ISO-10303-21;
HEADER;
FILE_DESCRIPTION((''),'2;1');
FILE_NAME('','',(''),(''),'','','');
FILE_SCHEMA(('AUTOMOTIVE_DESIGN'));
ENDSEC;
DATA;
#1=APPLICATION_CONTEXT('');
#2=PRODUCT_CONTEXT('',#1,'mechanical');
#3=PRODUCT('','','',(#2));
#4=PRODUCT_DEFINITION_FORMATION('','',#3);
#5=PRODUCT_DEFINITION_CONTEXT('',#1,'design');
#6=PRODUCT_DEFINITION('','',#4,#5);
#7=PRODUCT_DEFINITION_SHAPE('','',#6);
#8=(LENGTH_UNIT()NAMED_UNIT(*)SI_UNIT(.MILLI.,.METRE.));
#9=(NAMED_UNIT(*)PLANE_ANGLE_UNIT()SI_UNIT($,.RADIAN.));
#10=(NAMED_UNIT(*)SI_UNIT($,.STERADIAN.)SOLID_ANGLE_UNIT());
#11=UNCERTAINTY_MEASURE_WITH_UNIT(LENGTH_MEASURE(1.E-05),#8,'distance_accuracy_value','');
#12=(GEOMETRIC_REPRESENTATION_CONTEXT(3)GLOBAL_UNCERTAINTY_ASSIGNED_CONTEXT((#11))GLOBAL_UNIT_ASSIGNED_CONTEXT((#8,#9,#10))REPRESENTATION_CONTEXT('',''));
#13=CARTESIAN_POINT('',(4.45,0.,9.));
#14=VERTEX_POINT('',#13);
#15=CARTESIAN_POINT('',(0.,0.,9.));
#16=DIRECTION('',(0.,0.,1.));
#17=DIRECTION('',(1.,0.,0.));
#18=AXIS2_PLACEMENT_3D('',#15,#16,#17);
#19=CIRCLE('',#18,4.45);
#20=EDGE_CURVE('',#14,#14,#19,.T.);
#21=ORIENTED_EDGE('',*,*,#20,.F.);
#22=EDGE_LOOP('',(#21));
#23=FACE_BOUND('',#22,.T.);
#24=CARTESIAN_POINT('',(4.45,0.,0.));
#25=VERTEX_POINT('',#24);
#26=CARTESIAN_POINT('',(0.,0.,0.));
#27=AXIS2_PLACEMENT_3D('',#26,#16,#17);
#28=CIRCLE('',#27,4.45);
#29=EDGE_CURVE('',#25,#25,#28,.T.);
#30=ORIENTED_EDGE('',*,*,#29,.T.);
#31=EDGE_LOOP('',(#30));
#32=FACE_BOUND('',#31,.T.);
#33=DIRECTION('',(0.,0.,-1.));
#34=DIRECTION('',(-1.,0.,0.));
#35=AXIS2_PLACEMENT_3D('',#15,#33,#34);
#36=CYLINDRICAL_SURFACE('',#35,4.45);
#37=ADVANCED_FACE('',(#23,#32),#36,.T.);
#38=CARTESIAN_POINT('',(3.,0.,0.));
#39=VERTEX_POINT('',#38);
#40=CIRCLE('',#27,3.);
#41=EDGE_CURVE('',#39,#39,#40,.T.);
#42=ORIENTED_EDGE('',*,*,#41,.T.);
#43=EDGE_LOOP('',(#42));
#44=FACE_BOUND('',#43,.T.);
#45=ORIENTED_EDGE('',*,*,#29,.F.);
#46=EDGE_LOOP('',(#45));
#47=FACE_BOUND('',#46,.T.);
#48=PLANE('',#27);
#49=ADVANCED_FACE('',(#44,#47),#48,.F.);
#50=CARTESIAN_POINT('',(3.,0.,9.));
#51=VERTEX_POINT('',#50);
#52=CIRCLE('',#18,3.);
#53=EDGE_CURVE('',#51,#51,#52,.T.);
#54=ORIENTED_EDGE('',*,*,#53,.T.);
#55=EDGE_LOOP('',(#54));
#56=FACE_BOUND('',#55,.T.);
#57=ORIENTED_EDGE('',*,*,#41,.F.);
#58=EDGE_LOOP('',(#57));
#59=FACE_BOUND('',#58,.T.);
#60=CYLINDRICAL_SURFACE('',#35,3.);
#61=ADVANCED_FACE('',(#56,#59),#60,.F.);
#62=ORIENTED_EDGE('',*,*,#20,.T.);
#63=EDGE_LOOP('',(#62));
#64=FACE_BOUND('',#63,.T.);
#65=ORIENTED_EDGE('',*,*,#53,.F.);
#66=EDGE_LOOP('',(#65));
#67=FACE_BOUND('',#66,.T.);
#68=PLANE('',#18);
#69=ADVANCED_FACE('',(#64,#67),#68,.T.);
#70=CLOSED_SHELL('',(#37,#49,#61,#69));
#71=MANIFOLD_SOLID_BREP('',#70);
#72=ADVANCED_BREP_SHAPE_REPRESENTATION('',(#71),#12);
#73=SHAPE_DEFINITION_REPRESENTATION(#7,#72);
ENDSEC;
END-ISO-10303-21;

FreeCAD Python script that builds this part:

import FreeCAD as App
import Part
import Sketcher
from FreeCAD import Vector
Q = App.Units.Quantity

doc = App.newDocument("Part")
params = doc.addObject("Spreadsheet::Sheet", "Params")
for row, (alias, value) in enumerate([
    ("sketch1_diameter", "6 mm"),
    ("sketch1_diameter2", "8.9 mm"),
    ("pad1_length", "9 mm"),
], start=1):
    params.set(f"A{row}", alias)
    params.set(f"B{row}", "=" + value)
    params.setAlias(f"B{row}", alias)

body = doc.addObject("PartDesign::Body", "Body")

# Sketch on XY plane
sketch1 = body.newObject("Sketcher::SketchObject", "Sketch")
sketch1.AttachmentSupport = (doc.getObject("XY_Plane"), [""])
sketch1.MapMode = "FlatFace"
sketch1.addGeometry([
    Part.Circle(Vector(0, 0, 0), Vector(0, 0, 1), 4.45),
    Part.Circle(Vector(0, 0, 0), Vector(0, 0, 1), 3),
], False)
sketch1.addConstraint([
    Sketcher.Constraint("Coincident", 0, 3, -1, 1),
    Sketcher.Constraint("Coincident", 1, 3, -1, 1),
    Sketcher.Constraint("Diameter", 1, Q("6 mm")),
    Sketcher.Constraint("Diameter", 0, Q("8.9 mm")),
])
sketch1.setExpression("Constraints[2]", "Params.sketch1_diameter")
sketch1.setExpression("Constraints[3]", "Params.sketch1_diameter2")
pad1 = body.newObject("PartDesign::Pad", "Pad")
pad1.Profile = sketch1
pad1.setExpression("Length", "Params.pad1_length")

doc.recompute()
